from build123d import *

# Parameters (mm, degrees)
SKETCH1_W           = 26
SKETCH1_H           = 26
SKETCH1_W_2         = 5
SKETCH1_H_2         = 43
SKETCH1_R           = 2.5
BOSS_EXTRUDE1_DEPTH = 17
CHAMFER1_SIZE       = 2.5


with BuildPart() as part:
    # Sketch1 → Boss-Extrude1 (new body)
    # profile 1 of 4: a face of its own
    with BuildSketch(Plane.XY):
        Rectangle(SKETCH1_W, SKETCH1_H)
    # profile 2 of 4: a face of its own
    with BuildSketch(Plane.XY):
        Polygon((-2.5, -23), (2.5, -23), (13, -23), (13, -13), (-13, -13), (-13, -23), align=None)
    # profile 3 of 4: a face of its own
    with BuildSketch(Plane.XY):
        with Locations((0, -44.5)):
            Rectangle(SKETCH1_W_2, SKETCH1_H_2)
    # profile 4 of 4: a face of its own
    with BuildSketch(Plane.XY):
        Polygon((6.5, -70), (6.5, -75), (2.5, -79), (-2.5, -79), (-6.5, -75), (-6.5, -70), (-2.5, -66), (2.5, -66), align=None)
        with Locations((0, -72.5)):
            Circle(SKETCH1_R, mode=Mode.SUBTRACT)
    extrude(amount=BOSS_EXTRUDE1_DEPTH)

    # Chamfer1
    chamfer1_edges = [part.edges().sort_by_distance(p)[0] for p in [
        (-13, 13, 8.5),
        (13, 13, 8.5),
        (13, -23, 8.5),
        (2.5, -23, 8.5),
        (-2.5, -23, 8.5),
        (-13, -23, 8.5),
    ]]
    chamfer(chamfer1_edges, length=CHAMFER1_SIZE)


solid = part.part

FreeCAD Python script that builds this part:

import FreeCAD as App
import Part
import Sketcher

V = App.Vector


def edges_at(feature, points):
    """Names of the edges that pass closest to the given points."""
    edges = feature.Shape.Edges
    near = lambda p: min(range(len(edges)), key=lambda i: edges[i].distToShape(Part.Vertex(*p))[0])
    return sorted({f"Edge{near(p) + 1}" for p in points})


def add_polygon(sketch, points):
    """Adds a closed chain of lines whose ends are joined by coincident constraints."""
    first, n = sketch.GeometryCount, len(points)
    for a, b in zip(points, points[1:] + points[:1]):
        sketch.addGeometry(Part.LineSegment(App.Vector(*a, 0), App.Vector(*b, 0)), False)
    for i in range(n):
        sketch.addConstraint(Sketcher.Constraint("Coincident", first + i, 2, first + (i + 1) % n, 1))

doc = App.newDocument("Part")
body = doc.addObject("PartDesign::Body", "Body")

# Sketch on XY plane
sketch1 = body.newObject("Sketcher::SketchObject", "Sketch")
sketch1.AttachmentSupport = (doc.getObject("XY_Plane"), [""])
sketch1.MapMode = "FlatFace"
add_polygon(sketch1, [(-13, 13), (-13, -23), (-2.5, -23), (-2.5, -66), (-6.5, -70), (-6.5, -75), (-2.5, -79), (2.5, -79), (6.5, -75), (6.5, -70), (2.5, -66), (2.5, -23), (13, -23), (13, 13)])  # lines 0-13
sketch1.addGeometry(Part.Circle(V(0, -72.5, 0), V(0, 0, 1), 2.5), False)  # 14
sketch1.addConstraint([
    Sketcher.Constraint("Vertical", 0),
    Sketcher.Constraint("Horizontal", 1),
    Sketcher.Constraint("Vertical", 2),
    Sketcher.Constraint("Vertical", 4),
    Sketcher.Constraint("Horizontal", 6),
    Sketcher.Constraint("Vertical", 8),
    Sketcher.Constraint("Vertical", 10),
    Sketcher.Constraint("Horizontal", 11),
    Sketcher.Constraint("Vertical", 12),
    Sketcher.Constraint("Horizontal", 13),
    Sketcher.Constraint("Symmetric", 4, 2, 7, 2, -2),
    Sketcher.Constraint("Symmetric", 2, 2, 9, 2, -2),
    Sketcher.Constraint("Symmetric", 0, 2, 11, 2, -2),
    Sketcher.Constraint("PointOnObject", 14, 3, -2),
    Sketcher.Constraint("Perpendicular", 3, 5),
    Sketcher.Constraint("Perpendicular", 5, 7),
    Sketcher.Constraint("Perpendicular", 7, 9),
    Sketcher.Constraint("Horizontal", 3, 2, 8, 2),
    Sketcher.Constraint("Vertical", 2, 2, 5, 2),
    Sketcher.Constraint("Equal", 6, 4),
    Sketcher.Constraint("Diameter", 14, 5.0),
    Sketcher.Constraint("DistanceX", 6, 1, 6, 2, 5.0),
    Sketcher.Constraint("DistanceX", 13, 2, 13, 1, 26.0),
    Sketcher.Constraint("DistanceY", 0, 2, 0, 1, 36.0),
    Sketcher.Constraint("DistanceY", 2, 2, 2, 1, 43.0),
    Sketcher.Constraint("DistanceY", 0, 2, -1, 1, 23.0),
    Sketcher.Constraint("DistanceY", 3, 2, -1, 1, 70.0),
    Sketcher.Constraint("DistanceY", 14, 3, -1, 1, 72.5),
])
pad1 = body.newObject("PartDesign::Pad", "Pad")
pad1.Profile = sketch1
pad1.Length = 17
doc.recompute()

chamfer = body.newObject("PartDesign::Chamfer", "Chamfer")
chamfer.Base = (pad1, edges_at(pad1, [
    (-13, 13, 8.5),
    (13, 13, 8.5),
    (13, -23, 8.5),
    (2.5, -23, 8.5),
    (-2.5, -23, 8.5),
    (-13, -23, 8.5),
]))
chamfer.Size = 2.5

doc.recompute()
